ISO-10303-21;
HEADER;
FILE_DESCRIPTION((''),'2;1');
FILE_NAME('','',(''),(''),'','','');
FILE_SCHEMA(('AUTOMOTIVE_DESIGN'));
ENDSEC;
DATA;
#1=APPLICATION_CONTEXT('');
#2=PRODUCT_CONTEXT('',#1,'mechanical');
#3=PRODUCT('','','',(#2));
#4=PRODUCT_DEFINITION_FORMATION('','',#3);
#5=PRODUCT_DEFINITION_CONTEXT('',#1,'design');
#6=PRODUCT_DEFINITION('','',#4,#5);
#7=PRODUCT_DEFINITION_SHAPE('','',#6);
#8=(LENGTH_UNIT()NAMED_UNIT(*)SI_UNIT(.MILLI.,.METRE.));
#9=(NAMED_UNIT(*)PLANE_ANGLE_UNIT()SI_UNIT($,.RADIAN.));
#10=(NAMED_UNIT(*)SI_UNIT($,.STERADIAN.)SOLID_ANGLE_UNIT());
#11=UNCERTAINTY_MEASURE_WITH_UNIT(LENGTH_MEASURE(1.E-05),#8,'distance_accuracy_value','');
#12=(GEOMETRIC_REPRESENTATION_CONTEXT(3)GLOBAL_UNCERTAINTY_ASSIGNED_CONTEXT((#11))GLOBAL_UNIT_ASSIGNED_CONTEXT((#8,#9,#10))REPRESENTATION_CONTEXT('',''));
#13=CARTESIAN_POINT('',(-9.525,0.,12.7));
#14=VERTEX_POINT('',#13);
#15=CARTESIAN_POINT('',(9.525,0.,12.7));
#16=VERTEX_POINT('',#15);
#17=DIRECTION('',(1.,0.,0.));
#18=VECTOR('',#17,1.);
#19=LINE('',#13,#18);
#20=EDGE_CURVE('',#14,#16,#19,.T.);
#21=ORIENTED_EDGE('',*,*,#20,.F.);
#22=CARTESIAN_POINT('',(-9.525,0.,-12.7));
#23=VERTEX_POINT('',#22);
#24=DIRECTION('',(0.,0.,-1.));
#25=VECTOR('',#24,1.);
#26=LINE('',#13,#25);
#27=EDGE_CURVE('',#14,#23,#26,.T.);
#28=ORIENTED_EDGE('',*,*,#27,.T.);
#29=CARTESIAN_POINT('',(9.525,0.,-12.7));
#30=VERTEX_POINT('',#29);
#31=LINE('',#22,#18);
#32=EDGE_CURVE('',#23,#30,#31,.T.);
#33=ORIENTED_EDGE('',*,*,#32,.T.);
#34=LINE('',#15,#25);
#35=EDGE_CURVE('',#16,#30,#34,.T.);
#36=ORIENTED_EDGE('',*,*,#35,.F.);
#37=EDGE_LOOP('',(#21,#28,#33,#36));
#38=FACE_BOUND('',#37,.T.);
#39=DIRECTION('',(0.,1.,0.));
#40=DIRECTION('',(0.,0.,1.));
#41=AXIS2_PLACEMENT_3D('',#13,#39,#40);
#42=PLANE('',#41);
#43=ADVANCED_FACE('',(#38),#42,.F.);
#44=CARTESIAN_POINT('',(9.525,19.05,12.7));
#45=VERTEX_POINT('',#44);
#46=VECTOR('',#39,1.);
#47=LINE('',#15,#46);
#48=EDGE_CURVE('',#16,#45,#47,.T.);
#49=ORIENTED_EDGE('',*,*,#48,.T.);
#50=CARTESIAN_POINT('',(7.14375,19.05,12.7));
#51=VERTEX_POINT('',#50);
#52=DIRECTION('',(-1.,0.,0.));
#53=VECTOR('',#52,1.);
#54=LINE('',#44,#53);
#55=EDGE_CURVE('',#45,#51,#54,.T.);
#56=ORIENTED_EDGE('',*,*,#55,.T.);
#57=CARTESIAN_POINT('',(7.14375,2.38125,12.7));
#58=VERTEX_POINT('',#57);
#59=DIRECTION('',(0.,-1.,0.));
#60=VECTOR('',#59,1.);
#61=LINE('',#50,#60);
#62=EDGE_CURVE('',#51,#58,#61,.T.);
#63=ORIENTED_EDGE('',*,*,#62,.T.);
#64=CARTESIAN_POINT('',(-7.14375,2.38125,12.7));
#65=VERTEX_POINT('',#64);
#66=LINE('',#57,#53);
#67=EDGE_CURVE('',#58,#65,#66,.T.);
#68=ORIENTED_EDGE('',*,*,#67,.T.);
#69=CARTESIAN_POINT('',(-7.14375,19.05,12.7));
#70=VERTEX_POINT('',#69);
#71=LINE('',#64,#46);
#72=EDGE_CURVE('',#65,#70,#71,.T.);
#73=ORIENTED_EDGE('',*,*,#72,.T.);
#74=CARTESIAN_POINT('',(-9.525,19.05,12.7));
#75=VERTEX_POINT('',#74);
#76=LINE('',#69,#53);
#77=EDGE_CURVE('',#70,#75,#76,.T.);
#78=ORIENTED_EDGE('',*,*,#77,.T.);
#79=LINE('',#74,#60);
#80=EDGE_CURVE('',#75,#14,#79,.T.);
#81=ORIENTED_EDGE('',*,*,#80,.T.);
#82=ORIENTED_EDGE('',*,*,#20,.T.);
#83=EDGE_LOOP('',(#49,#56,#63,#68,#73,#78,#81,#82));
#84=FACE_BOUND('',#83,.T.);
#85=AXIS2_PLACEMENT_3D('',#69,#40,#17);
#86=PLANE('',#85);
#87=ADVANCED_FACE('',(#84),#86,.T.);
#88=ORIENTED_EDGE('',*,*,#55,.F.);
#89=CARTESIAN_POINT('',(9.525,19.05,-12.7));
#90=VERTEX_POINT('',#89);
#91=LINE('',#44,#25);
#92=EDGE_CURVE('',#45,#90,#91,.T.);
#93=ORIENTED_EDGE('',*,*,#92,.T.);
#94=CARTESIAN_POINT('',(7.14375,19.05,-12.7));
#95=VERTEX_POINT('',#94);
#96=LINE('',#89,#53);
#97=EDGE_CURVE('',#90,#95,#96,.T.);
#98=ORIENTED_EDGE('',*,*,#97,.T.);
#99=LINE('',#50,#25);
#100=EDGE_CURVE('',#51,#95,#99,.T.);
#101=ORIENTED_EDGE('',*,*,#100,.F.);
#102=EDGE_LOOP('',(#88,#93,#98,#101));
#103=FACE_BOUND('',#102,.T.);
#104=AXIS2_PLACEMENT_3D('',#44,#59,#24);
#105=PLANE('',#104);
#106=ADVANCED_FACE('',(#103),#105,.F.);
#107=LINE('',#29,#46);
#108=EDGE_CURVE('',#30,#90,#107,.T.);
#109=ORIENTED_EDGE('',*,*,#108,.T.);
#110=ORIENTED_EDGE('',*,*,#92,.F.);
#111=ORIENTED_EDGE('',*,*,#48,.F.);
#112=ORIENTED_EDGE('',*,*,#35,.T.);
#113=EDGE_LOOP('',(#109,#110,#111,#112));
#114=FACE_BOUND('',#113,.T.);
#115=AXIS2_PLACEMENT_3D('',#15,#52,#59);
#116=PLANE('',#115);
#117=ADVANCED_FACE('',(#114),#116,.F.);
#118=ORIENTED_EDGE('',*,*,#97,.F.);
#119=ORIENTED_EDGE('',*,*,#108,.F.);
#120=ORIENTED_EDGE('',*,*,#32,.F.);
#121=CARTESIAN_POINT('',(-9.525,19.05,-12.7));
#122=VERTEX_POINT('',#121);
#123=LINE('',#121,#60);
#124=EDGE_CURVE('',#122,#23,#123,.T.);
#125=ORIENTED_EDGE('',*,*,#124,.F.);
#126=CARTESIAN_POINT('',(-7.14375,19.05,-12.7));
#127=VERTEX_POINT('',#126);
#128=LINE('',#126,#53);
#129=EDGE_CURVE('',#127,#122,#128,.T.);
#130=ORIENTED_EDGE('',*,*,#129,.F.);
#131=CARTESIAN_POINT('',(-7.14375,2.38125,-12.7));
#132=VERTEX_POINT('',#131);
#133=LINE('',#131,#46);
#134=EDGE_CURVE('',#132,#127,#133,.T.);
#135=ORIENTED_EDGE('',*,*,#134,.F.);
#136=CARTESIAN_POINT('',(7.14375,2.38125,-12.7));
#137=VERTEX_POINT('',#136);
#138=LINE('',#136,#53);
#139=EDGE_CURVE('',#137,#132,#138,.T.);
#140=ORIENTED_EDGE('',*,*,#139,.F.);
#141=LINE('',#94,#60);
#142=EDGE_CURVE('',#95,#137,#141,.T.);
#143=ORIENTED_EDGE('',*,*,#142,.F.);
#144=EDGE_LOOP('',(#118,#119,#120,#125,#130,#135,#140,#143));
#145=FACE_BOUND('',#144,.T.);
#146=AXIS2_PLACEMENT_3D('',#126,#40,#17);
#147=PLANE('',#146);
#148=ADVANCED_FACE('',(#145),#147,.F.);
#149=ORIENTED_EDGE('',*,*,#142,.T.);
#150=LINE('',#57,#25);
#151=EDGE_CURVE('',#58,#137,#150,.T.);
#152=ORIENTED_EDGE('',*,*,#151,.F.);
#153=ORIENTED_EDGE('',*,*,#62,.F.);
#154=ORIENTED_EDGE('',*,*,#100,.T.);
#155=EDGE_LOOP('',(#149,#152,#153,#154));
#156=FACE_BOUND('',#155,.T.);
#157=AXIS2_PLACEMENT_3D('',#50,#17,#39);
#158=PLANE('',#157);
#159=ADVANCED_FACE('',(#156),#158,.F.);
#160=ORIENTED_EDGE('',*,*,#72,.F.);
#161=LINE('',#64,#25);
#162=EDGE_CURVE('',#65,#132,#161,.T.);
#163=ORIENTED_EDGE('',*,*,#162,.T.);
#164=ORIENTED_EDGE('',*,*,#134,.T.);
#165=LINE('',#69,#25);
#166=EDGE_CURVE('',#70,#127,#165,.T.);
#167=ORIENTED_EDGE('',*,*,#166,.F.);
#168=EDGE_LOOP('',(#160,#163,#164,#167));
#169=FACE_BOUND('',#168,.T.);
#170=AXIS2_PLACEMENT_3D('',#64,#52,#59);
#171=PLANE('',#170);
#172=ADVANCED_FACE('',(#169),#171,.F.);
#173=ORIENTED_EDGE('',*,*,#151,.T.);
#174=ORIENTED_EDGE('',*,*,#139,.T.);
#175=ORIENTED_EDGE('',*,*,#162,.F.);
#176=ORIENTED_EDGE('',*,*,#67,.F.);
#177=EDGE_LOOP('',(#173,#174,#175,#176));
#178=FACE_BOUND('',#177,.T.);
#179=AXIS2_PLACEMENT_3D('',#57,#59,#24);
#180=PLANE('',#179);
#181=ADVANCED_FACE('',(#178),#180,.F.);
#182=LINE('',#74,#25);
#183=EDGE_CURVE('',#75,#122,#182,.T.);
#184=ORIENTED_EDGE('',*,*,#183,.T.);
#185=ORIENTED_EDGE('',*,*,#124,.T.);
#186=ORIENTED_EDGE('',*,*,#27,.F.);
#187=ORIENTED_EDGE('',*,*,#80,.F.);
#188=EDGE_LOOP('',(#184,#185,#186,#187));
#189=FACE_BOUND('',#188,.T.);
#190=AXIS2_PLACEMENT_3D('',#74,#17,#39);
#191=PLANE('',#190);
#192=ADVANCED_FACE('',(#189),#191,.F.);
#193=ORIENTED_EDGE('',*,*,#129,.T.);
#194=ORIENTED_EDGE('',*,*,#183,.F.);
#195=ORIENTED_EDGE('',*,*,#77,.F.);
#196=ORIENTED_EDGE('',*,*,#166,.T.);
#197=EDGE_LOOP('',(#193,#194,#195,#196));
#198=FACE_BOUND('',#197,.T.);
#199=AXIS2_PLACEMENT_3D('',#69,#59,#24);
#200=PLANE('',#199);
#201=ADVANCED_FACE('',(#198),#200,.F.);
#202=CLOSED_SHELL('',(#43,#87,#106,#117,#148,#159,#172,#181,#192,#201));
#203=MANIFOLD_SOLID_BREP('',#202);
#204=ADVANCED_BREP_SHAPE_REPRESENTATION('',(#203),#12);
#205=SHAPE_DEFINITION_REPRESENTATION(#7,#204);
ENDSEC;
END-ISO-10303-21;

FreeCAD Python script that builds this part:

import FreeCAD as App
import Part
import Sketcher

V = App.Vector
Q = App.Units.Quantity

doc = App.newDocument("Part")
body = doc.addObject("PartDesign::Body", "Body")

sketch1 = doc.addObject("Sketcher::SketchObject", "Sketch")
body.addObject(sketch1)
sketch1.AttachmentSupport = (doc.XY_Plane, [""])
sketch1.MapMode = "FlatFace"
sketch1.addGeometry([
    Part.LineSegment(V(-7.1, 19.1, 0), V(-9.5, 19.1, 0)),
    Part.LineSegment(V(-9.5, 19.1, 0), V(-9.5, 0, 0)),
    Part.LineSegment(V(-9.5, 0, 0), V(9.5, 0, 0)),
    Part.LineSegment(V(9.5, 0, 0), V(9.5, 19.1, 0)),
    Part.LineSegment(V(9.5, 19.1, 0), V(7.1, 19.1, 0)),
    Part.LineSegment(V(7.1, 19.1, 0), V(7.1, 2.4, 0)),
    Part.LineSegment(V(7.1, 2.4, 0), V(-7.1, 2.4, 0)),
    Part.LineSegment(V(-7.1, 2.4, 0), V(-7.1, 19.1, 0)),
], False)
sketch1.addConstraint([
    Sketcher.Constraint("Coincident", 0, 2, 1, 1),
    Sketcher.Constraint("Coincident", 1, 2, 2, 1),
    Sketcher.Constraint("Coincident", 2, 2, 3, 1),
    Sketcher.Constraint("Coincident", 3, 2, 4, 1),
    Sketcher.Constraint("Coincident", 4, 2, 5, 1),
    Sketcher.Constraint("Coincident", 5, 2, 6, 1),
    Sketcher.Constraint("Coincident", 6, 2, 7, 1),
    Sketcher.Constraint("Coincident", 7, 2, 0, 1),
    Sketcher.Constraint("Horizontal", 0),
    Sketcher.Constraint("Vertical", 1),
    Sketcher.Constraint("Horizontal", 2),
    Sketcher.Constraint("Vertical", 3),
    Sketcher.Constraint("Horizontal", 4),
    Sketcher.Constraint("Vertical", 5),
    Sketcher.Constraint("Horizontal", 6),
    Sketcher.Constraint("Vertical", 7),
    Sketcher.Constraint("Symmetric", 1, 2, 2, 2, -1, 1),
    Sketcher.Constraint("Symmetric", 4, 2, 7, 2, -2),
    Sketcher.Constraint("Equal", 2, 1),
    Sketcher.Constraint("DistanceX", 2, 1, 2, 2, Q("0.75 in")),
    Sketcher.Constraint("DistanceX", 0, 2, 0, 1, Q("0.09375 in")),
    Sketcher.Constraint("DistanceY", 5, 2, 5, 1, Q("0.65625 in")),
])
pad1 = doc.addObject("PartDesign::Pad", "Pad")
body.addObject(pad1)
pad1.Profile = sketch1
pad1.Length = Q("1 in")
pad1.Midplane = True

doc.recompute()
